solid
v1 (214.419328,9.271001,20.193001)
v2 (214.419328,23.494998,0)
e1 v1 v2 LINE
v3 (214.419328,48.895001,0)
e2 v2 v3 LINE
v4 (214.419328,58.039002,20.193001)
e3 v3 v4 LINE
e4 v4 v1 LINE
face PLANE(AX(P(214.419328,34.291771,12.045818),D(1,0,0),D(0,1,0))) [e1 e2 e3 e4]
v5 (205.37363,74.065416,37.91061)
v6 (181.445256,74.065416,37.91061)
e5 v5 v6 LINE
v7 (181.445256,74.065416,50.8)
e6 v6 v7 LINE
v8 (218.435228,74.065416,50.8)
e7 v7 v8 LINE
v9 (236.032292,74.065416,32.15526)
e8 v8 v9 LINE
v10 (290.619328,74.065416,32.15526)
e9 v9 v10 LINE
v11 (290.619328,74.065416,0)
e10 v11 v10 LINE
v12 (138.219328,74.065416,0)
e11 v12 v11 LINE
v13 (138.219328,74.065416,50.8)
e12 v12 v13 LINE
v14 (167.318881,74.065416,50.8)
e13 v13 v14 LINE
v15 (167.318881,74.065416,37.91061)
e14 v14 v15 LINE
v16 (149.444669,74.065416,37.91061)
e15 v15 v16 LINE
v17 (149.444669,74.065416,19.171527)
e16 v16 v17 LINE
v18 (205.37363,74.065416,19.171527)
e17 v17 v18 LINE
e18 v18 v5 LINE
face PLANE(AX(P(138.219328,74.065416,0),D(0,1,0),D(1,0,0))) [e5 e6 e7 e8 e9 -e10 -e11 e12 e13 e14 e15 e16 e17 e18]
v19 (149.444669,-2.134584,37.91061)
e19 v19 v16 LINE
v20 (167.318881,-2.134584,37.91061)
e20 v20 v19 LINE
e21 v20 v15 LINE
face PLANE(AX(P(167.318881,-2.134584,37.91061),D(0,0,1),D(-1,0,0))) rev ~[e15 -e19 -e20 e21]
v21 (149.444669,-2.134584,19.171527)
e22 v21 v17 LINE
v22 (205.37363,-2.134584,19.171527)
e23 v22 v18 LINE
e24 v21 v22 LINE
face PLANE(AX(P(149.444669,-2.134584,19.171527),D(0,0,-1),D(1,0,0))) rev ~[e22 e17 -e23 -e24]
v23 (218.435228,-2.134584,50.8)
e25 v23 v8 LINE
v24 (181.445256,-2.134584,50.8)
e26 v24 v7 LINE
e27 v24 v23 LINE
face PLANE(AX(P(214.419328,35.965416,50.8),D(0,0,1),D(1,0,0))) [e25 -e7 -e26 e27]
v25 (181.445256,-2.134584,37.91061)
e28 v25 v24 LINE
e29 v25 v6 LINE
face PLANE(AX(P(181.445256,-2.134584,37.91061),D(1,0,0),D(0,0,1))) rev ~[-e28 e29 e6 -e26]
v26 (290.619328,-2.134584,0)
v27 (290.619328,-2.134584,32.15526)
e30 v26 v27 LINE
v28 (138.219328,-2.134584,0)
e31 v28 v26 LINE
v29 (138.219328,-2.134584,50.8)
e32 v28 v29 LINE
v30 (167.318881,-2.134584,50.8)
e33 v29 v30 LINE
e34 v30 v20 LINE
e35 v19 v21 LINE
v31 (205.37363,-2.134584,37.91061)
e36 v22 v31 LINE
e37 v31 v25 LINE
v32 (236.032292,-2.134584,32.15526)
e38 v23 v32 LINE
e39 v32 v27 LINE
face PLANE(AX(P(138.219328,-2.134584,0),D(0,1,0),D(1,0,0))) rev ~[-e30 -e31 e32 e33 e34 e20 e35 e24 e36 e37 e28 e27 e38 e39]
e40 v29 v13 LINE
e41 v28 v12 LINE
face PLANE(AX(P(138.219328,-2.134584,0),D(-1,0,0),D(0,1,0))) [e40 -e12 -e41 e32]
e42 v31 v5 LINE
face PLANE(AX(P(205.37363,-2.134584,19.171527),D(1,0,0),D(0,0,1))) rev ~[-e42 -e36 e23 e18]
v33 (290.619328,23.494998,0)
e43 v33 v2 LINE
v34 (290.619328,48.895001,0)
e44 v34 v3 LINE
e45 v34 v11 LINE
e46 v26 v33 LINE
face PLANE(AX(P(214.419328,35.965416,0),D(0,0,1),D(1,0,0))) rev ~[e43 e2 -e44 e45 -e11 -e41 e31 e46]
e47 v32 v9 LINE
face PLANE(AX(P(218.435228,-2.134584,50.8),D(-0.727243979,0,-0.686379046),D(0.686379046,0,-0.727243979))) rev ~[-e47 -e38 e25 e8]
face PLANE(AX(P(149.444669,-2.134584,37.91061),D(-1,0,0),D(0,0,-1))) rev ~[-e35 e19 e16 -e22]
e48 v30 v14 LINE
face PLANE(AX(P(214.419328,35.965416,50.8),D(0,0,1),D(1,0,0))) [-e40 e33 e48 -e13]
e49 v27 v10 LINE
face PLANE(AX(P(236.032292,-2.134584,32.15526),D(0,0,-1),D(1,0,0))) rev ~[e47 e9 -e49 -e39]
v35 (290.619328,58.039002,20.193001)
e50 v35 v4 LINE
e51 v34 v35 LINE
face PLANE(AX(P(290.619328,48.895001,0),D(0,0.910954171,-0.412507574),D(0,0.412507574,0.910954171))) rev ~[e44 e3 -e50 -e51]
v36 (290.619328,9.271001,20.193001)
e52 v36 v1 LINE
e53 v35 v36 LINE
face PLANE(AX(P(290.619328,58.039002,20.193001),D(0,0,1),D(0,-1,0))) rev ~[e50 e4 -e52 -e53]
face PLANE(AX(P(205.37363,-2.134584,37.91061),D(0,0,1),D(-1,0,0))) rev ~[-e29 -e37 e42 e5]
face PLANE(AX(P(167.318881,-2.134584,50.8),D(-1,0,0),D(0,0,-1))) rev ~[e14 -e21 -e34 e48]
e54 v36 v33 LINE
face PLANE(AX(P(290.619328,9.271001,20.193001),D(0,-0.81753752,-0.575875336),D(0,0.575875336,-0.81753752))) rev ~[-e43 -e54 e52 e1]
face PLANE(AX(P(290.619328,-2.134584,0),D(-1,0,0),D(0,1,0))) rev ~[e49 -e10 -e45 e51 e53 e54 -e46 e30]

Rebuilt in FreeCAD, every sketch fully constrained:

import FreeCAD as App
import Part
import Sketcher
from FreeCAD import Vector
Q = App.Units.Quantity

doc = App.newDocument("Part")
params = doc.addObject("Spreadsheet::Sheet", "Params")
for row, (alias, value) in enumerate([
    ("sketch1_width", "6 in"),
    ("sketch1_height", "3 in"),
    ("pad1_length", "2 in"),
    ("pocket1_length", "3 in"),
    ("pocket2_length", "3 in"),
    ("sketch4_width", "1.0000001 in"),
    ("sketch4_width2", "1.92 in"),
    ("pocket3_length", "3 in"),
], start=1):
    params.set(f"A{row}", alias)
    params.set(f"B{row}", "=" + value)
    params.setAlias(f"B{row}", alias)

body = doc.addObject("PartDesign::Body", "Body")

sketch1 = doc.addObject("Sketcher::SketchObject", "Sketch")
body.addObject(sketch1)
sketch1.AttachmentSupport = (doc.XY_Plane, [""])
sketch1.MapMode = "FlatFace"
sketch1.addGeometry([
    Part.LineSegment(Vector(138, 74, 0), Vector(138, -2, 0)),
    Part.LineSegment(Vector(138, -2, 0), Vector(291, -2, 0)),
    Part.LineSegment(Vector(291, -2, 0), Vector(291, 74, 0)),
    Part.LineSegment(Vector(291, 74, 0), Vector(138, 74, 0)),
], False)
sketch1.addConstraint([
    Sketcher.Constraint("Coincident", 0, 2, 1, 1),
    Sketcher.Constraint("Coincident", 1, 2, 2, 1),
    Sketcher.Constraint("Coincident", 2, 2, 3, 1),
    Sketcher.Constraint("Coincident", 3, 2, 0, 1),
    Sketcher.Constraint("Vertical", 0),
    Sketcher.Constraint("Horizontal", 1),
    Sketcher.Constraint("Vertical", 2),
    Sketcher.Constraint("Horizontal", 3),
    Sketcher.Constraint("DistanceX", 1, 1, 1, 2, Q("6 in")),
    Sketcher.Constraint("DistanceY", 0, 2, 0, 1, Q("3 in")),
    Sketcher.Constraint("DistanceX", -1, 1, 1, 2, Q("290.619328 mm")),
    Sketcher.Constraint("DistanceY", 0, 2, -1, 1, Q("2.134584 mm")),
])
sketch1.setExpression("Constraints[8]", "Params.sketch1_width")
sketch1.setExpression("Constraints[9]", "Params.sketch1_height")
pad1 = doc.addObject("PartDesign::Pad", "Pad")
body.addObject(pad1)
pad1.Profile = sketch1
pad1.setExpression("Length", "Params.pad1_length")

sketch2 = doc.addObject("Sketcher::SketchObject", "Sketch001")
body.addObject(sketch2)
sketch2.AttachmentSupport = (doc.XZ_Plane, [""])
sketch2.MapMode = "FlatFace"
sketch2.AttachmentOffset = App.Placement(Vector(0, 0, 2.134584), App.Rotation())
sketch2.addGeometry([
    Part.LineSegment(Vector(181, 51, 0), Vector(167, 51, 0)),
    Part.LineSegment(Vector(167, 51, 0), Vector(167, 38, 0)),
    Part.LineSegment(Vector(167, 38, 0), Vector(149, 38, 0)),
    Part.LineSegment(Vector(149, 38, 0), Vector(149, 19, 0)),
    Part.LineSegment(Vector(149, 19, 0), Vector(205, 19, 0)),
    Part.LineSegment(Vector(205, 19, 0), Vector(205, 38, 0)),
    Part.LineSegment(Vector(205, 38, 0), Vector(181, 38, 0)),
    Part.LineSegment(Vector(181, 38, 0), Vector(181, 51, 0)),
], False)
sketch2.addConstraint([
    Sketcher.Constraint("Coincident", 0, 2, 1, 1),
    Sketcher.Constraint("Coincident", 1, 2, 2, 1),
    Sketcher.Constraint("Coincident", 2, 2, 3, 1),
    Sketcher.Constraint("Coincident", 3, 2, 4, 1),
    Sketcher.Constraint("Coincident", 4, 2, 5, 1),
    Sketcher.Constraint("Coincident", 5, 2, 6, 1),
    Sketcher.Constraint("Coincident", 6, 2, 7, 1),
    Sketcher.Constraint("Coincident", 7, 2, 0, 1),
    Sketcher.Constraint("Horizontal", 0),
    Sketcher.Constraint("Vertical", 1),
    Sketcher.Constraint("Horizontal", 2),
    Sketcher.Constraint("Vertical", 3),
    Sketcher.Constraint("Horizontal", 4),
    Sketcher.Constraint("Vertical", 5),
    Sketcher.Constraint("Horizontal", 6),
    Sketcher.Constraint("Vertical", 7),
    Sketcher.Constraint("Horizontal", 2, 2, 5, 2),
    Sketcher.Constraint("DistanceY", -1, 1, 0, 2, Q("2 in")),
    Sketcher.Constraint("DistanceX", 2, 2, 2, 1, Q("17.874212 mm")),
    Sketcher.Constraint("DistanceX", 4, 1, 4, 2, Q("55.928961 mm")),
    Sketcher.Constraint("DistanceY", 1, 2, 1, 1, Q("12.88939 mm")),
    Sketcher.Constraint("DistanceX", 0, 2, 0, 1, Q("14.126375 mm")),
    Sketcher.Constraint("DistanceY", 3, 2, 3, 1, Q("18.739083 mm")),
    Sketcher.Constraint("DistanceX", -1, 1, 0, 2, Q("167.318881 mm")),
])
pocket1 = doc.addObject("PartDesign::Pocket", "Pocket")
body.addObject(pocket1)
pocket1.Profile = sketch2
pocket1.setExpression("Length", "Params.pocket1_length")

sketch3 = doc.addObject("Sketcher::SketchObject", "Sketch002")
body.addObject(sketch3)
sketch3.AttachmentSupport = (doc.XZ_Plane, [""])
sketch3.MapMode = "FlatFace"
sketch3.AttachmentOffset = App.Placement(Vector(0, 0, 2.134584), App.Rotation())
sketch3.addGeometry([
    Part.LineSegment(Vector(291, 51, 0), Vector(218, 51, 0)),
    Part.LineSegment(Vector(218, 51, 0), Vector(236, 32, 0)),
    Part.LineSegment(Vector(236, 32, 0), Vector(291, 32, 0)),
    Part.LineSegment(Vector(291, 32, 0), Vector(291, 51, 0)),
], False)
sketch3.addConstraint([
    Sketcher.Constraint("Coincident", 0, 2, 1, 1),
    Sketcher.Constraint("Coincident", 1, 2, 2, 1),
    Sketcher.Constraint("Coincident", 2, 2, 3, 1),
    Sketcher.Constraint("Coincident", 3, 2, 0, 1),
    Sketcher.Constraint("Horizontal", 0),
    Sketcher.Constraint("Horizontal", 2),
    Sketcher.Constraint("Vertical", 3),
    Sketcher.Constraint("DistanceY", -1, 1, 0, 2, Q("2 in")),
    Sketcher.Constraint("DistanceX", 0, 2, 0, 1, Q("72.1841 mm")),
    Sketcher.Constraint("DistanceY", 3, 1, 3, 2, Q("18.64474 mm")),
    Sketcher.Constraint("Distance", 1, Q("25.637531 mm")),
    Sketcher.Constraint("DistanceX", -1, 1, 0, 2, Q("218.435228 mm")),
])
pocket2 = doc.addObject("PartDesign::Pocket", "Pocket001")
body.addObject(pocket2)
pocket2.Profile = sketch3
pocket2.setExpression("Length", "Params.pocket2_length")

sketch4 = doc.addObject("Sketcher::SketchObject", "Sketch003")
body.addObject(sketch4)
sketch4.AttachmentSupport = (doc.YZ_Plane, [""])
sketch4.MapMode = "FlatFace"
sketch4.AttachmentOffset = App.Placement(Vector(0, 0, 290.619328), App.Rotation())
sketch4.addGeometry([
    Part.LineSegment(Vector(9, 20, 0), Vector(23, 0, 0)),
    Part.LineSegment(Vector(23, 0, 0), Vector(49, 0, 0)),
    Part.LineSegment(Vector(49, 0, 0), Vector(58, 20, 0)),
    Part.LineSegment(Vector(58, 20, 0), Vector(9, 20, 0)),
], False)
sketch4.addConstraint([
    Sketcher.Constraint("Coincident", 0, 2, 1, 1),
    Sketcher.Constraint("Coincident", 1, 2, 2, 1),
    Sketcher.Constraint("Coincident", 2, 2, 3, 1),
    Sketcher.Constraint("Coincident", 3, 2, 0, 1),
    Sketcher.Constraint("Horizontal", 1),
    Sketcher.Constraint("Horizontal", 3),
    Sketcher.Constraint("PointOnObject", 0, 2, -1),
    Sketcher.Constraint("DistanceX", 1, 1, 1, 2, Q("1.0000001 in")),
    Sketcher.Constraint("DistanceX", 3, 2, 3, 1, Q("1.92 in")),
    Sketcher.Constraint("DistanceX", 1, 2, 2, 2, Q("0.36 in")),
    Sketcher.Constraint("DistanceX", -1, 1, 0, 2, Q("0.9249999 in")),
    Sketcher.Constraint("DistanceY", -1, 1, 2, 2, Q("0.795 in")),
])
sketch4.setExpression("Constraints[7]", "Params.sketch4_width")
sketch4.setExpression("Constraints[8]", "Params.sketch4_width2")
pocket3 = doc.addObject("PartDesign::Pocket", "Pocket002")
body.addObject(pocket3)
pocket3.Profile = sketch4
pocket3.setExpression("Length", "Params.pocket3_length")

doc.recompute()
